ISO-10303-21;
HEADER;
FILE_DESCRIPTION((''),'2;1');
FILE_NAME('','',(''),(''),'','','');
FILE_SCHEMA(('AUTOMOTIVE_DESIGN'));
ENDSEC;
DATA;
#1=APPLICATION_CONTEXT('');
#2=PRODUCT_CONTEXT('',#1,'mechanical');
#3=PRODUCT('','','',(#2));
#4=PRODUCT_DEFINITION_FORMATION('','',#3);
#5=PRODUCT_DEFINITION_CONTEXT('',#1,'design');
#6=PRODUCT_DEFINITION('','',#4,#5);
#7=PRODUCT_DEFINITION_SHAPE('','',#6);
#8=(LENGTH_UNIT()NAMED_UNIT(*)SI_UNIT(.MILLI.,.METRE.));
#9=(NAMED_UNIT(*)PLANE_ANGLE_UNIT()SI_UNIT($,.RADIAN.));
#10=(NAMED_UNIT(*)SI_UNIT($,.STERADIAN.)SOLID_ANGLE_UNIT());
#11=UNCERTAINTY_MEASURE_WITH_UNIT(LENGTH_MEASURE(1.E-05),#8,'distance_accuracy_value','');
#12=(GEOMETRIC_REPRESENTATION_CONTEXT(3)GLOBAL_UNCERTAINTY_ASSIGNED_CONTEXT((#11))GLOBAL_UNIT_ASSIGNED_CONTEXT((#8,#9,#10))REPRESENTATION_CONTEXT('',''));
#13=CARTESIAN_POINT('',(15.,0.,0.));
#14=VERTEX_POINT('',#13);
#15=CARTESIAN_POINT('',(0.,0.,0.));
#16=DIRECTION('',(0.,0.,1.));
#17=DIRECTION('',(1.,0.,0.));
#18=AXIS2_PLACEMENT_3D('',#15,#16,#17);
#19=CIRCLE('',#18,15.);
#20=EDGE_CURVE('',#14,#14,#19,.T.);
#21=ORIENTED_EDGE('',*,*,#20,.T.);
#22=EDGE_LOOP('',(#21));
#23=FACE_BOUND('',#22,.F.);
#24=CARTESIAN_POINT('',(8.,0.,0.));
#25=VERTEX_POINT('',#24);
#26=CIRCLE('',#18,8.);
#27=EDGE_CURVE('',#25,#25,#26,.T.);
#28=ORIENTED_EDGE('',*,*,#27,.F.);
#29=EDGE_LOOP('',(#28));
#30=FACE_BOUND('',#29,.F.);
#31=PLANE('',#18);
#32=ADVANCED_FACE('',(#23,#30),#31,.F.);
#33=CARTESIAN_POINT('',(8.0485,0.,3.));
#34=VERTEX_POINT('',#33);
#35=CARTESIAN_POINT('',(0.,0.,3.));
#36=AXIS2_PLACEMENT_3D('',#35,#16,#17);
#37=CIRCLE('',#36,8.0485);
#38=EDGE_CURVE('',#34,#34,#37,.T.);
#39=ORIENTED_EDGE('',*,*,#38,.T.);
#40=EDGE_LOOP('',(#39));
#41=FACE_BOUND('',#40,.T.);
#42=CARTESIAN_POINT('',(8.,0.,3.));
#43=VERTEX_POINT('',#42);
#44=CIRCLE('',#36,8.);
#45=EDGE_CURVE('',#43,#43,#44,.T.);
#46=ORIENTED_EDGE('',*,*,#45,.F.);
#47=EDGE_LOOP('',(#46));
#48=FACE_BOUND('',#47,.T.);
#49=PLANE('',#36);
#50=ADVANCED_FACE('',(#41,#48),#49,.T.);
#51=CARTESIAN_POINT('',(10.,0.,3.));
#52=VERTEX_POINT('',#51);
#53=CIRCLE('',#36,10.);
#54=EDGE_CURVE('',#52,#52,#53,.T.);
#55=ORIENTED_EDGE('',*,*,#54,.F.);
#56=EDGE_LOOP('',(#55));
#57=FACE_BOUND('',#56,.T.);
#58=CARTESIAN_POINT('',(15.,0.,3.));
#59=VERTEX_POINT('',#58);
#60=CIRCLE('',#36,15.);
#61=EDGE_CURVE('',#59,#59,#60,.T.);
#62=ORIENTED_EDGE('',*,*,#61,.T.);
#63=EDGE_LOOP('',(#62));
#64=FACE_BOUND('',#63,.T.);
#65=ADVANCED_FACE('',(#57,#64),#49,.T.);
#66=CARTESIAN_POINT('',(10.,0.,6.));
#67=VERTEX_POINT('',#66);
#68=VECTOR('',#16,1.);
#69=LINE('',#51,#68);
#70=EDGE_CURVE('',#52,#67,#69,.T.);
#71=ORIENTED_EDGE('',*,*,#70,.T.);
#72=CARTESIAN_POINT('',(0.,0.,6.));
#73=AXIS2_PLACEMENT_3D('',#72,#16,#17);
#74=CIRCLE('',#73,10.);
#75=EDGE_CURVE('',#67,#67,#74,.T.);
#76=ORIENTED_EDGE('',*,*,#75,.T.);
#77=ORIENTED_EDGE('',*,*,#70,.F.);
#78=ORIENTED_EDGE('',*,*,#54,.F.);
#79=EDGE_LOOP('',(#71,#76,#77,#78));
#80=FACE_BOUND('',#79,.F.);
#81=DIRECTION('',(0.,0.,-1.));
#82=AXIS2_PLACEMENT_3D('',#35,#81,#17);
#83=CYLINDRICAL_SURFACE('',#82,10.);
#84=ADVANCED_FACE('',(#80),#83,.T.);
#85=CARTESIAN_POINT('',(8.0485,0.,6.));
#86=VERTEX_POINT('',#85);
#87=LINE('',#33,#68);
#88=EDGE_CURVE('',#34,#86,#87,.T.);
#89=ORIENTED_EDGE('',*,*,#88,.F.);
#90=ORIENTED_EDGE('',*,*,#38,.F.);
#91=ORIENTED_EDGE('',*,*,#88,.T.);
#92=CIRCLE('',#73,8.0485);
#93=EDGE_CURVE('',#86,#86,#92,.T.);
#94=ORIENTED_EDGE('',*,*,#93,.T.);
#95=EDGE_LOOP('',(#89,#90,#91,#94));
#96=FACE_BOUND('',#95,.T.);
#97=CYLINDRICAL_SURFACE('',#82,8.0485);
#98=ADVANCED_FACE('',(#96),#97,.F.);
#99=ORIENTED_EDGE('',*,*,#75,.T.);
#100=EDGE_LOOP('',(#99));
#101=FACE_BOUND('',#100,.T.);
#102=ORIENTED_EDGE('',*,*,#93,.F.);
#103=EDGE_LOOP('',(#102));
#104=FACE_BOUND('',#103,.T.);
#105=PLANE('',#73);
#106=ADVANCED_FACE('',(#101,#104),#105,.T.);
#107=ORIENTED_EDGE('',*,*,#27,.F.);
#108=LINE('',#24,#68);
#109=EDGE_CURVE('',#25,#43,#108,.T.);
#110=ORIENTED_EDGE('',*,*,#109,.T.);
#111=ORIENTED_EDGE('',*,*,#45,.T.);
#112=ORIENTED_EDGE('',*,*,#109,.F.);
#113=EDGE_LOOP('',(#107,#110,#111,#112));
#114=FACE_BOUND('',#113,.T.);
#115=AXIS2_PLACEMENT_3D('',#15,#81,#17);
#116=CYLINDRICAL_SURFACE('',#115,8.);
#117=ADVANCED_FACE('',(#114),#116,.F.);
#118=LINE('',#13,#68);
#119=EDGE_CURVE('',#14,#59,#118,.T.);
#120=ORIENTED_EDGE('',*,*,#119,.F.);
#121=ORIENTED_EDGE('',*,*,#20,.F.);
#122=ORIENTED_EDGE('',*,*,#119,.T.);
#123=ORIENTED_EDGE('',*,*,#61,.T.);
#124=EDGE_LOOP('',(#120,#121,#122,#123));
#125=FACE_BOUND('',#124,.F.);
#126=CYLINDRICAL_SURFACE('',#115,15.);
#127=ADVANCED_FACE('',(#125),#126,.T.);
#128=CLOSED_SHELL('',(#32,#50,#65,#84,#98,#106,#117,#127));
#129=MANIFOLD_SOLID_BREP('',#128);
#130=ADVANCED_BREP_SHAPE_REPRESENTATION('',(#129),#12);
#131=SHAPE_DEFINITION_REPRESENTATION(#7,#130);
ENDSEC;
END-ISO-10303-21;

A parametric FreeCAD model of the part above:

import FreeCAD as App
import Part
import Sketcher

doc = App.newDocument("Part")
params = doc.addObject("Spreadsheet::Sheet", "Params")
for row, (alias, value) in enumerate([
    ("sketch1_diameter", "30 mm"),
    ("sketch1_diameter2", "16 mm"),
    ("pad1_length", "3 mm"),
    ("sketch2_diameter", "20 mm"),
    ("pad2_length", "3 mm"),
], start=1):
    params.set(f"A{row}", alias)
    params.set(f"B{row}", "=" + value)
    params.setAlias(f"B{row}", alias)

body = doc.addObject("PartDesign::Body", "Body")

sketch1 = body.newObject("Sketcher::SketchObject", "Sketch")
sketch1.AttachmentSupport = (doc.getObject("XY_Plane"), [""])
sketch1.MapMode = "FlatFace"
sketch1.addGeometry([
    Part.Circle(App.Vector(0, 0, 0), App.Vector(0, 0, 1), 15),
    Part.Circle(App.Vector(0, 0, 0), App.Vector(0, 0, 1), 8),
], False)
sketch1.addConstraint([
    Sketcher.Constraint("Coincident", 0, 3, -1, 1),
    Sketcher.Constraint("Coincident", 1, 3, -1, 1),
    Sketcher.Constraint("Diameter", 0, 30.0),
    Sketcher.Constraint("Diameter", 1, 16.0),
])
sketch1.setExpression("Constraints[2]", "Params.sketch1_diameter")
sketch1.setExpression("Constraints[3]", "Params.sketch1_diameter2")
pad1 = body.newObject("PartDesign::Pad", "Pad")
pad1.Profile = sketch1
pad1.setExpression("Length", "Params.pad1_length")

sketch2 = body.newObject("Sketcher::SketchObject", "Sketch001")
sketch2.AttachmentSupport = (doc.getObject("XY_Plane"), [""])
sketch2.MapMode = "FlatFace"
sketch2.AttachmentOffset = App.Placement(App.Vector(0, 0, 3), App.Rotation())
sketch2.addGeometry([
    Part.Circle(App.Vector(0, 0, 0), App.Vector(0, 0, 1), 10),
    Part.Circle(App.Vector(0, 0, 0), App.Vector(0, 0, 1), 8.0485),
], False)
sketch2.addConstraint([
    Sketcher.Constraint("Coincident", 0, 3, -1, 1),
    Sketcher.Constraint("Coincident", 1, 3, -1, 1),
    Sketcher.Constraint("Diameter", 0, 20.0),
    Sketcher.Constraint("Diameter", 1, 16.097),
])
sketch2.setExpression("Constraints[2]", "Params.sketch2_diameter")
pad2 = body.newObject("PartDesign::Pad", "Pad001")
pad2.Profile = sketch2
pad2.setExpression("Length", "Params.pad2_length")

doc.recompute()
